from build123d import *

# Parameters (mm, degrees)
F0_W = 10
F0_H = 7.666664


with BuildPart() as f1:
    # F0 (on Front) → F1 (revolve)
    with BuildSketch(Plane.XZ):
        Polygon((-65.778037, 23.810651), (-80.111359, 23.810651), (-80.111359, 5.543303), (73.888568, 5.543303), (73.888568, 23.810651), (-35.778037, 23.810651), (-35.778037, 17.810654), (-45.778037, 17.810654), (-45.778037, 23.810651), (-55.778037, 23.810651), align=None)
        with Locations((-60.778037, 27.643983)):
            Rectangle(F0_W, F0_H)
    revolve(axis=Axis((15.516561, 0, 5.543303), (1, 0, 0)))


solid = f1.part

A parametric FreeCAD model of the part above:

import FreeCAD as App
import Part
import Sketcher

V = App.Vector

doc = App.newDocument("Part")
body = doc.addObject("PartDesign::Body", "Body")

sketch1 = body.newObject("Sketcher::SketchObject", "Sketch")
sketch1.AttachmentSupport = (doc.getObject("XZ_Plane"), [""])
sketch1.MapMode = "FlatFace"
sketch1.addGeometry([
    Part.LineSegment(V(-80, 24, 0), V(-80, 6, 0)),
    Part.LineSegment(V(-80, 6, 0), V(74, 6, 0)),
    Part.LineSegment(V(74, 6, 0), V(74, 24, 0)),
    Part.LineSegment(V(74, 24, 0), V(-36, 24, 0)),
    Part.LineSegment(V(-36, 24, 0), V(-36, 18, 0)),
    Part.LineSegment(V(-36, 18, 0), V(-46, 18, 0)),
    Part.LineSegment(V(-46, 18, 0), V(-46, 24, 0)),
    Part.LineSegment(V(-46, 24, 0), V(-56, 24, 0)),
    Part.LineSegment(V(-56, 24, 0), V(-56, 31, 0)),
    Part.LineSegment(V(-56, 31, 0), V(-66, 31, 0)),
    Part.LineSegment(V(-66, 31, 0), V(-66, 24, 0)),
    Part.LineSegment(V(-66, 24, 0), V(-80, 24, 0)),
], False)
sketch1.addGeometry(Part.LineSegment(V(-80, 6, 0), V(74, 6, 0)), True)
sketch1.addConstraint([
    Sketcher.Constraint("Coincident", 0, 2, 1, 1),
    Sketcher.Constraint("Coincident", 1, 2, 2, 1),
    Sketcher.Constraint("Coincident", 2, 2, 3, 1),
    Sketcher.Constraint("Coincident", 3, 2, 4, 1),
    Sketcher.Constraint("Coincident", 4, 2, 5, 1),
    Sketcher.Constraint("Coincident", 5, 2, 6, 1),
    Sketcher.Constraint("Coincident", 6, 2, 7, 1),
    Sketcher.Constraint("Coincident", 7, 2, 8, 1),
    Sketcher.Constraint("Coincident", 8, 2, 9, 1),
    Sketcher.Constraint("Coincident", 9, 2, 10, 1),
    Sketcher.Constraint("Coincident", 10, 2, 11, 1),
    Sketcher.Constraint("Coincident", 11, 2, 0, 1),
    Sketcher.Constraint("Vertical", 0),
    Sketcher.Constraint("Horizontal", 1),
    Sketcher.Constraint("Vertical", 2),
    Sketcher.Constraint("Horizontal", 3),
    Sketcher.Constraint("Vertical", 4),
    Sketcher.Constraint("Horizontal", 5),
    Sketcher.Constraint("Vertical", 6),
    Sketcher.Constraint("Horizontal", 7),
    Sketcher.Constraint("Vertical", 8),
    Sketcher.Constraint("Horizontal", 9),
    Sketcher.Constraint("Vertical", 10),
    Sketcher.Constraint("Horizontal", 11),
    Sketcher.Constraint("Horizontal", 12),
    Sketcher.Constraint("Coincident", 12, 1, 0, 2),
    Sketcher.Constraint("Horizontal", 3, 2, 6, 2),
    Sketcher.Constraint("Horizontal", 7, 2, 10, 2),
    Sketcher.Constraint("Vertical", 2, 2, 12, 2),
    Sketcher.Constraint("Equal", 5, 7),
    Sketcher.Constraint("Equal", 7, 9),
    Sketcher.Constraint("DistanceX", 5, 2, 5, 1, 10.0),
    Sketcher.Constraint("DistanceX", 11, 2, 11, 1, 14.333322),
    Sketcher.Constraint("DistanceX", 1, 1, 1, 2, 153.999927),
    Sketcher.Constraint("DistanceY", 0, 2, 0, 1, 18.267348),
    Sketcher.Constraint("DistanceY", 4, 2, 4, 1, 5.999997),
    Sketcher.Constraint("DistanceY", 8, 1, 8, 2, 7.666664),
    Sketcher.Constraint("DistanceX", 0, 2, -1, 1, 80.111359),
    Sketcher.Constraint("DistanceY", -1, 1, 2, 2, 23.810651),
])
revolution = body.newObject("PartDesign::Revolution", "Revolution")
revolution.Profile = sketch1
revolution.ReferenceAxis = (sketch1, ["Axis0"])
revolution.Angle = 360

doc.recompute()
